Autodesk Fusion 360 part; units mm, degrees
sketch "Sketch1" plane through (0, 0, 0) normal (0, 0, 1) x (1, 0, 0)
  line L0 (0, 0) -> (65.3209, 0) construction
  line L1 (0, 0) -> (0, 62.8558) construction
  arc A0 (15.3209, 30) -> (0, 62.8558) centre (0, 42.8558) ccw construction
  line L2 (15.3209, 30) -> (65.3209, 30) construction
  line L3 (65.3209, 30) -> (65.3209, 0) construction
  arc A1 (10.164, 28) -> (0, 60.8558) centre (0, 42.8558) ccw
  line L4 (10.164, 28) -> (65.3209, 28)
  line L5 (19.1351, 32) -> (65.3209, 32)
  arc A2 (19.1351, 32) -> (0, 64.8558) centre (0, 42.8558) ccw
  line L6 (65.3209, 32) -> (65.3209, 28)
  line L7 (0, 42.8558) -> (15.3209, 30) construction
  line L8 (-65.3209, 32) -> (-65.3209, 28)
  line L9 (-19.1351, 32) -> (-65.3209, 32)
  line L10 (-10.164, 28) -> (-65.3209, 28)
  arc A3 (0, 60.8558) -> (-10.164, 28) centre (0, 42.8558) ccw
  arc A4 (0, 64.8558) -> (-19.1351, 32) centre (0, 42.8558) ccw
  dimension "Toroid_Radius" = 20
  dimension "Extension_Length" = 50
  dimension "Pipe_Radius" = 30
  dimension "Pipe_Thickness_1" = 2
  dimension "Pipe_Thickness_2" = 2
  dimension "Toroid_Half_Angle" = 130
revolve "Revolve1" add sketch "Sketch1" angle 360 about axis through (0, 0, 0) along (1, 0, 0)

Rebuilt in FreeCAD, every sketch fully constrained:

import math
import FreeCAD as App
import Part
import Sketcher

V = App.Vector

doc = App.newDocument("Part")
body = doc.addObject("PartDesign::Body", "Body")

# Sketch on XY plane
sketch1 = doc.addObject("Sketcher::SketchObject", "Sketch")
body.addObject(sketch1)
sketch1.AttachmentSupport = (doc.XY_Plane, [""])
sketch1.MapMode = "FlatFace"
sketch1.addGeometry(Part.ArcOfCircle(Part.Circle(V(0, 42.8558, 0), V(0, 0, 1), 18), math.radians(-55.620955), math.radians(90)), False)
sketch1.addGeometry(Part.LineSegment(V(10.164, 28, 0), V(65.3209, 28, 0)), False)
sketch1.addGeometry(Part.LineSegment(V(65.3209, 28, 0), V(65.3209, 32, 0)), False)
sketch1.addGeometry(Part.LineSegment(V(65.3209, 32, 0), V(19.1351, 32, 0)), False)
sketch1.addGeometry(Part.ArcOfCircle(Part.Circle(V(0, 42.8558, 0), V(0, 0, 1), 22), math.radians(-29.567279), math.radians(90)), False)
sketch1.addGeometry(Part.ArcOfCircle(Part.Circle(V(0, 42.8558, 0), V(0, 0, 1), 22.00001), math.radians(90), math.radians(209.567279)), False)
sketch1.addGeometry(Part.LineSegment(V(-19.1351, 32, 0), V(-65.3209, 32, 0)), False)
sketch1.addGeometry(Part.LineSegment(V(-65.3209, 32, 0), V(-65.3209, 28, 0)), False)
sketch1.addGeometry(Part.LineSegment(V(-65.3209, 28, 0), V(-10.164, 28, 0)), False)
sketch1.addGeometry(Part.ArcOfCircle(Part.Circle(V(0, 42.8558, 0), V(0, 0, 1), 18.000047), math.radians(90), math.radians(235.620955)), False)
sketch1.addConstraint(Sketcher.Constraint("Coincident", 0, 1, 1, 1))
sketch1.addConstraint(Sketcher.Constraint("Coincident", 1, 2, 2, 1))
sketch1.addConstraint(Sketcher.Constraint("Coincident", 2, 2, 3, 1))
sketch1.addConstraint(Sketcher.Constraint("Coincident", 3, 2, 4, 1))
sketch1.addConstraint(Sketcher.Constraint("Tangent", 4, 2, 5, 1))
sketch1.addConstraint(Sketcher.Constraint("Coincident", 5, 2, 6, 1))
sketch1.addConstraint(Sketcher.Constraint("Coincident", 6, 2, 7, 1))
sketch1.addConstraint(Sketcher.Constraint("Coincident", 7, 2, 8, 1))
sketch1.addConstraint(Sketcher.Constraint("Coincident", 8, 2, 9, 2))
sketch1.addConstraint(Sketcher.Constraint("Tangent", 9, 1, 0, 2))
sketch1.addConstraint(Sketcher.Constraint("Horizontal", 1))
sketch1.addConstraint(Sketcher.Constraint("Vertical", 2))
sketch1.addConstraint(Sketcher.Constraint("Horizontal", 3))
sketch1.addConstraint(Sketcher.Constraint("Horizontal", 6))
sketch1.addConstraint(Sketcher.Constraint("Vertical", 7))
sketch1.addConstraint(Sketcher.Constraint("Horizontal", 8))
sketch1.addConstraint(Sketcher.Constraint("Coincident", 4, 3, 0, 3))
sketch1.addConstraint(Sketcher.Constraint("Equal", 4, 5))
sketch1.addConstraint(Sketcher.Constraint("Equal", 0, 9))
sketch1.addConstraint(Sketcher.Constraint("Symmetric", 3, 2, 5, 2, -2))
sketch1.addConstraint(Sketcher.Constraint("Symmetric", 1, 2, 7, 2, -2))
sketch1.addConstraint(Sketcher.Constraint("PointOnObject", 4, 2, -2))
sketch1.addConstraint(Sketcher.Constraint("PointOnObject", 9, 1, -2))
sketch1.addConstraint(Sketcher.Constraint("Radius", 0, 18.0))
sketch1.addConstraint(Sketcher.Constraint("Radius", 4, 22.0))
sketch1.addConstraint(Sketcher.Constraint("DistanceY", 2, 1, 2, 2, 4.0))
sketch1.addConstraint(Sketcher.Constraint("DistanceY", -1, 1, 0, 1, 28.0))
sketch1.addConstraint(Sketcher.Constraint("DistanceX", 1, 1, 1, 2, 55.157))
sketch1.addConstraint(Sketcher.Constraint("DistanceX", 3, 2, 3, 1, 46.1858))
revolution = doc.addObject("PartDesign::Revolution", "Revolution")
body.addObject(revolution)
revolution.Profile = sketch1
revolution.ReferenceAxis = (sketch1, ["H_Axis"])
revolution.Angle = 360

doc.recompute()
